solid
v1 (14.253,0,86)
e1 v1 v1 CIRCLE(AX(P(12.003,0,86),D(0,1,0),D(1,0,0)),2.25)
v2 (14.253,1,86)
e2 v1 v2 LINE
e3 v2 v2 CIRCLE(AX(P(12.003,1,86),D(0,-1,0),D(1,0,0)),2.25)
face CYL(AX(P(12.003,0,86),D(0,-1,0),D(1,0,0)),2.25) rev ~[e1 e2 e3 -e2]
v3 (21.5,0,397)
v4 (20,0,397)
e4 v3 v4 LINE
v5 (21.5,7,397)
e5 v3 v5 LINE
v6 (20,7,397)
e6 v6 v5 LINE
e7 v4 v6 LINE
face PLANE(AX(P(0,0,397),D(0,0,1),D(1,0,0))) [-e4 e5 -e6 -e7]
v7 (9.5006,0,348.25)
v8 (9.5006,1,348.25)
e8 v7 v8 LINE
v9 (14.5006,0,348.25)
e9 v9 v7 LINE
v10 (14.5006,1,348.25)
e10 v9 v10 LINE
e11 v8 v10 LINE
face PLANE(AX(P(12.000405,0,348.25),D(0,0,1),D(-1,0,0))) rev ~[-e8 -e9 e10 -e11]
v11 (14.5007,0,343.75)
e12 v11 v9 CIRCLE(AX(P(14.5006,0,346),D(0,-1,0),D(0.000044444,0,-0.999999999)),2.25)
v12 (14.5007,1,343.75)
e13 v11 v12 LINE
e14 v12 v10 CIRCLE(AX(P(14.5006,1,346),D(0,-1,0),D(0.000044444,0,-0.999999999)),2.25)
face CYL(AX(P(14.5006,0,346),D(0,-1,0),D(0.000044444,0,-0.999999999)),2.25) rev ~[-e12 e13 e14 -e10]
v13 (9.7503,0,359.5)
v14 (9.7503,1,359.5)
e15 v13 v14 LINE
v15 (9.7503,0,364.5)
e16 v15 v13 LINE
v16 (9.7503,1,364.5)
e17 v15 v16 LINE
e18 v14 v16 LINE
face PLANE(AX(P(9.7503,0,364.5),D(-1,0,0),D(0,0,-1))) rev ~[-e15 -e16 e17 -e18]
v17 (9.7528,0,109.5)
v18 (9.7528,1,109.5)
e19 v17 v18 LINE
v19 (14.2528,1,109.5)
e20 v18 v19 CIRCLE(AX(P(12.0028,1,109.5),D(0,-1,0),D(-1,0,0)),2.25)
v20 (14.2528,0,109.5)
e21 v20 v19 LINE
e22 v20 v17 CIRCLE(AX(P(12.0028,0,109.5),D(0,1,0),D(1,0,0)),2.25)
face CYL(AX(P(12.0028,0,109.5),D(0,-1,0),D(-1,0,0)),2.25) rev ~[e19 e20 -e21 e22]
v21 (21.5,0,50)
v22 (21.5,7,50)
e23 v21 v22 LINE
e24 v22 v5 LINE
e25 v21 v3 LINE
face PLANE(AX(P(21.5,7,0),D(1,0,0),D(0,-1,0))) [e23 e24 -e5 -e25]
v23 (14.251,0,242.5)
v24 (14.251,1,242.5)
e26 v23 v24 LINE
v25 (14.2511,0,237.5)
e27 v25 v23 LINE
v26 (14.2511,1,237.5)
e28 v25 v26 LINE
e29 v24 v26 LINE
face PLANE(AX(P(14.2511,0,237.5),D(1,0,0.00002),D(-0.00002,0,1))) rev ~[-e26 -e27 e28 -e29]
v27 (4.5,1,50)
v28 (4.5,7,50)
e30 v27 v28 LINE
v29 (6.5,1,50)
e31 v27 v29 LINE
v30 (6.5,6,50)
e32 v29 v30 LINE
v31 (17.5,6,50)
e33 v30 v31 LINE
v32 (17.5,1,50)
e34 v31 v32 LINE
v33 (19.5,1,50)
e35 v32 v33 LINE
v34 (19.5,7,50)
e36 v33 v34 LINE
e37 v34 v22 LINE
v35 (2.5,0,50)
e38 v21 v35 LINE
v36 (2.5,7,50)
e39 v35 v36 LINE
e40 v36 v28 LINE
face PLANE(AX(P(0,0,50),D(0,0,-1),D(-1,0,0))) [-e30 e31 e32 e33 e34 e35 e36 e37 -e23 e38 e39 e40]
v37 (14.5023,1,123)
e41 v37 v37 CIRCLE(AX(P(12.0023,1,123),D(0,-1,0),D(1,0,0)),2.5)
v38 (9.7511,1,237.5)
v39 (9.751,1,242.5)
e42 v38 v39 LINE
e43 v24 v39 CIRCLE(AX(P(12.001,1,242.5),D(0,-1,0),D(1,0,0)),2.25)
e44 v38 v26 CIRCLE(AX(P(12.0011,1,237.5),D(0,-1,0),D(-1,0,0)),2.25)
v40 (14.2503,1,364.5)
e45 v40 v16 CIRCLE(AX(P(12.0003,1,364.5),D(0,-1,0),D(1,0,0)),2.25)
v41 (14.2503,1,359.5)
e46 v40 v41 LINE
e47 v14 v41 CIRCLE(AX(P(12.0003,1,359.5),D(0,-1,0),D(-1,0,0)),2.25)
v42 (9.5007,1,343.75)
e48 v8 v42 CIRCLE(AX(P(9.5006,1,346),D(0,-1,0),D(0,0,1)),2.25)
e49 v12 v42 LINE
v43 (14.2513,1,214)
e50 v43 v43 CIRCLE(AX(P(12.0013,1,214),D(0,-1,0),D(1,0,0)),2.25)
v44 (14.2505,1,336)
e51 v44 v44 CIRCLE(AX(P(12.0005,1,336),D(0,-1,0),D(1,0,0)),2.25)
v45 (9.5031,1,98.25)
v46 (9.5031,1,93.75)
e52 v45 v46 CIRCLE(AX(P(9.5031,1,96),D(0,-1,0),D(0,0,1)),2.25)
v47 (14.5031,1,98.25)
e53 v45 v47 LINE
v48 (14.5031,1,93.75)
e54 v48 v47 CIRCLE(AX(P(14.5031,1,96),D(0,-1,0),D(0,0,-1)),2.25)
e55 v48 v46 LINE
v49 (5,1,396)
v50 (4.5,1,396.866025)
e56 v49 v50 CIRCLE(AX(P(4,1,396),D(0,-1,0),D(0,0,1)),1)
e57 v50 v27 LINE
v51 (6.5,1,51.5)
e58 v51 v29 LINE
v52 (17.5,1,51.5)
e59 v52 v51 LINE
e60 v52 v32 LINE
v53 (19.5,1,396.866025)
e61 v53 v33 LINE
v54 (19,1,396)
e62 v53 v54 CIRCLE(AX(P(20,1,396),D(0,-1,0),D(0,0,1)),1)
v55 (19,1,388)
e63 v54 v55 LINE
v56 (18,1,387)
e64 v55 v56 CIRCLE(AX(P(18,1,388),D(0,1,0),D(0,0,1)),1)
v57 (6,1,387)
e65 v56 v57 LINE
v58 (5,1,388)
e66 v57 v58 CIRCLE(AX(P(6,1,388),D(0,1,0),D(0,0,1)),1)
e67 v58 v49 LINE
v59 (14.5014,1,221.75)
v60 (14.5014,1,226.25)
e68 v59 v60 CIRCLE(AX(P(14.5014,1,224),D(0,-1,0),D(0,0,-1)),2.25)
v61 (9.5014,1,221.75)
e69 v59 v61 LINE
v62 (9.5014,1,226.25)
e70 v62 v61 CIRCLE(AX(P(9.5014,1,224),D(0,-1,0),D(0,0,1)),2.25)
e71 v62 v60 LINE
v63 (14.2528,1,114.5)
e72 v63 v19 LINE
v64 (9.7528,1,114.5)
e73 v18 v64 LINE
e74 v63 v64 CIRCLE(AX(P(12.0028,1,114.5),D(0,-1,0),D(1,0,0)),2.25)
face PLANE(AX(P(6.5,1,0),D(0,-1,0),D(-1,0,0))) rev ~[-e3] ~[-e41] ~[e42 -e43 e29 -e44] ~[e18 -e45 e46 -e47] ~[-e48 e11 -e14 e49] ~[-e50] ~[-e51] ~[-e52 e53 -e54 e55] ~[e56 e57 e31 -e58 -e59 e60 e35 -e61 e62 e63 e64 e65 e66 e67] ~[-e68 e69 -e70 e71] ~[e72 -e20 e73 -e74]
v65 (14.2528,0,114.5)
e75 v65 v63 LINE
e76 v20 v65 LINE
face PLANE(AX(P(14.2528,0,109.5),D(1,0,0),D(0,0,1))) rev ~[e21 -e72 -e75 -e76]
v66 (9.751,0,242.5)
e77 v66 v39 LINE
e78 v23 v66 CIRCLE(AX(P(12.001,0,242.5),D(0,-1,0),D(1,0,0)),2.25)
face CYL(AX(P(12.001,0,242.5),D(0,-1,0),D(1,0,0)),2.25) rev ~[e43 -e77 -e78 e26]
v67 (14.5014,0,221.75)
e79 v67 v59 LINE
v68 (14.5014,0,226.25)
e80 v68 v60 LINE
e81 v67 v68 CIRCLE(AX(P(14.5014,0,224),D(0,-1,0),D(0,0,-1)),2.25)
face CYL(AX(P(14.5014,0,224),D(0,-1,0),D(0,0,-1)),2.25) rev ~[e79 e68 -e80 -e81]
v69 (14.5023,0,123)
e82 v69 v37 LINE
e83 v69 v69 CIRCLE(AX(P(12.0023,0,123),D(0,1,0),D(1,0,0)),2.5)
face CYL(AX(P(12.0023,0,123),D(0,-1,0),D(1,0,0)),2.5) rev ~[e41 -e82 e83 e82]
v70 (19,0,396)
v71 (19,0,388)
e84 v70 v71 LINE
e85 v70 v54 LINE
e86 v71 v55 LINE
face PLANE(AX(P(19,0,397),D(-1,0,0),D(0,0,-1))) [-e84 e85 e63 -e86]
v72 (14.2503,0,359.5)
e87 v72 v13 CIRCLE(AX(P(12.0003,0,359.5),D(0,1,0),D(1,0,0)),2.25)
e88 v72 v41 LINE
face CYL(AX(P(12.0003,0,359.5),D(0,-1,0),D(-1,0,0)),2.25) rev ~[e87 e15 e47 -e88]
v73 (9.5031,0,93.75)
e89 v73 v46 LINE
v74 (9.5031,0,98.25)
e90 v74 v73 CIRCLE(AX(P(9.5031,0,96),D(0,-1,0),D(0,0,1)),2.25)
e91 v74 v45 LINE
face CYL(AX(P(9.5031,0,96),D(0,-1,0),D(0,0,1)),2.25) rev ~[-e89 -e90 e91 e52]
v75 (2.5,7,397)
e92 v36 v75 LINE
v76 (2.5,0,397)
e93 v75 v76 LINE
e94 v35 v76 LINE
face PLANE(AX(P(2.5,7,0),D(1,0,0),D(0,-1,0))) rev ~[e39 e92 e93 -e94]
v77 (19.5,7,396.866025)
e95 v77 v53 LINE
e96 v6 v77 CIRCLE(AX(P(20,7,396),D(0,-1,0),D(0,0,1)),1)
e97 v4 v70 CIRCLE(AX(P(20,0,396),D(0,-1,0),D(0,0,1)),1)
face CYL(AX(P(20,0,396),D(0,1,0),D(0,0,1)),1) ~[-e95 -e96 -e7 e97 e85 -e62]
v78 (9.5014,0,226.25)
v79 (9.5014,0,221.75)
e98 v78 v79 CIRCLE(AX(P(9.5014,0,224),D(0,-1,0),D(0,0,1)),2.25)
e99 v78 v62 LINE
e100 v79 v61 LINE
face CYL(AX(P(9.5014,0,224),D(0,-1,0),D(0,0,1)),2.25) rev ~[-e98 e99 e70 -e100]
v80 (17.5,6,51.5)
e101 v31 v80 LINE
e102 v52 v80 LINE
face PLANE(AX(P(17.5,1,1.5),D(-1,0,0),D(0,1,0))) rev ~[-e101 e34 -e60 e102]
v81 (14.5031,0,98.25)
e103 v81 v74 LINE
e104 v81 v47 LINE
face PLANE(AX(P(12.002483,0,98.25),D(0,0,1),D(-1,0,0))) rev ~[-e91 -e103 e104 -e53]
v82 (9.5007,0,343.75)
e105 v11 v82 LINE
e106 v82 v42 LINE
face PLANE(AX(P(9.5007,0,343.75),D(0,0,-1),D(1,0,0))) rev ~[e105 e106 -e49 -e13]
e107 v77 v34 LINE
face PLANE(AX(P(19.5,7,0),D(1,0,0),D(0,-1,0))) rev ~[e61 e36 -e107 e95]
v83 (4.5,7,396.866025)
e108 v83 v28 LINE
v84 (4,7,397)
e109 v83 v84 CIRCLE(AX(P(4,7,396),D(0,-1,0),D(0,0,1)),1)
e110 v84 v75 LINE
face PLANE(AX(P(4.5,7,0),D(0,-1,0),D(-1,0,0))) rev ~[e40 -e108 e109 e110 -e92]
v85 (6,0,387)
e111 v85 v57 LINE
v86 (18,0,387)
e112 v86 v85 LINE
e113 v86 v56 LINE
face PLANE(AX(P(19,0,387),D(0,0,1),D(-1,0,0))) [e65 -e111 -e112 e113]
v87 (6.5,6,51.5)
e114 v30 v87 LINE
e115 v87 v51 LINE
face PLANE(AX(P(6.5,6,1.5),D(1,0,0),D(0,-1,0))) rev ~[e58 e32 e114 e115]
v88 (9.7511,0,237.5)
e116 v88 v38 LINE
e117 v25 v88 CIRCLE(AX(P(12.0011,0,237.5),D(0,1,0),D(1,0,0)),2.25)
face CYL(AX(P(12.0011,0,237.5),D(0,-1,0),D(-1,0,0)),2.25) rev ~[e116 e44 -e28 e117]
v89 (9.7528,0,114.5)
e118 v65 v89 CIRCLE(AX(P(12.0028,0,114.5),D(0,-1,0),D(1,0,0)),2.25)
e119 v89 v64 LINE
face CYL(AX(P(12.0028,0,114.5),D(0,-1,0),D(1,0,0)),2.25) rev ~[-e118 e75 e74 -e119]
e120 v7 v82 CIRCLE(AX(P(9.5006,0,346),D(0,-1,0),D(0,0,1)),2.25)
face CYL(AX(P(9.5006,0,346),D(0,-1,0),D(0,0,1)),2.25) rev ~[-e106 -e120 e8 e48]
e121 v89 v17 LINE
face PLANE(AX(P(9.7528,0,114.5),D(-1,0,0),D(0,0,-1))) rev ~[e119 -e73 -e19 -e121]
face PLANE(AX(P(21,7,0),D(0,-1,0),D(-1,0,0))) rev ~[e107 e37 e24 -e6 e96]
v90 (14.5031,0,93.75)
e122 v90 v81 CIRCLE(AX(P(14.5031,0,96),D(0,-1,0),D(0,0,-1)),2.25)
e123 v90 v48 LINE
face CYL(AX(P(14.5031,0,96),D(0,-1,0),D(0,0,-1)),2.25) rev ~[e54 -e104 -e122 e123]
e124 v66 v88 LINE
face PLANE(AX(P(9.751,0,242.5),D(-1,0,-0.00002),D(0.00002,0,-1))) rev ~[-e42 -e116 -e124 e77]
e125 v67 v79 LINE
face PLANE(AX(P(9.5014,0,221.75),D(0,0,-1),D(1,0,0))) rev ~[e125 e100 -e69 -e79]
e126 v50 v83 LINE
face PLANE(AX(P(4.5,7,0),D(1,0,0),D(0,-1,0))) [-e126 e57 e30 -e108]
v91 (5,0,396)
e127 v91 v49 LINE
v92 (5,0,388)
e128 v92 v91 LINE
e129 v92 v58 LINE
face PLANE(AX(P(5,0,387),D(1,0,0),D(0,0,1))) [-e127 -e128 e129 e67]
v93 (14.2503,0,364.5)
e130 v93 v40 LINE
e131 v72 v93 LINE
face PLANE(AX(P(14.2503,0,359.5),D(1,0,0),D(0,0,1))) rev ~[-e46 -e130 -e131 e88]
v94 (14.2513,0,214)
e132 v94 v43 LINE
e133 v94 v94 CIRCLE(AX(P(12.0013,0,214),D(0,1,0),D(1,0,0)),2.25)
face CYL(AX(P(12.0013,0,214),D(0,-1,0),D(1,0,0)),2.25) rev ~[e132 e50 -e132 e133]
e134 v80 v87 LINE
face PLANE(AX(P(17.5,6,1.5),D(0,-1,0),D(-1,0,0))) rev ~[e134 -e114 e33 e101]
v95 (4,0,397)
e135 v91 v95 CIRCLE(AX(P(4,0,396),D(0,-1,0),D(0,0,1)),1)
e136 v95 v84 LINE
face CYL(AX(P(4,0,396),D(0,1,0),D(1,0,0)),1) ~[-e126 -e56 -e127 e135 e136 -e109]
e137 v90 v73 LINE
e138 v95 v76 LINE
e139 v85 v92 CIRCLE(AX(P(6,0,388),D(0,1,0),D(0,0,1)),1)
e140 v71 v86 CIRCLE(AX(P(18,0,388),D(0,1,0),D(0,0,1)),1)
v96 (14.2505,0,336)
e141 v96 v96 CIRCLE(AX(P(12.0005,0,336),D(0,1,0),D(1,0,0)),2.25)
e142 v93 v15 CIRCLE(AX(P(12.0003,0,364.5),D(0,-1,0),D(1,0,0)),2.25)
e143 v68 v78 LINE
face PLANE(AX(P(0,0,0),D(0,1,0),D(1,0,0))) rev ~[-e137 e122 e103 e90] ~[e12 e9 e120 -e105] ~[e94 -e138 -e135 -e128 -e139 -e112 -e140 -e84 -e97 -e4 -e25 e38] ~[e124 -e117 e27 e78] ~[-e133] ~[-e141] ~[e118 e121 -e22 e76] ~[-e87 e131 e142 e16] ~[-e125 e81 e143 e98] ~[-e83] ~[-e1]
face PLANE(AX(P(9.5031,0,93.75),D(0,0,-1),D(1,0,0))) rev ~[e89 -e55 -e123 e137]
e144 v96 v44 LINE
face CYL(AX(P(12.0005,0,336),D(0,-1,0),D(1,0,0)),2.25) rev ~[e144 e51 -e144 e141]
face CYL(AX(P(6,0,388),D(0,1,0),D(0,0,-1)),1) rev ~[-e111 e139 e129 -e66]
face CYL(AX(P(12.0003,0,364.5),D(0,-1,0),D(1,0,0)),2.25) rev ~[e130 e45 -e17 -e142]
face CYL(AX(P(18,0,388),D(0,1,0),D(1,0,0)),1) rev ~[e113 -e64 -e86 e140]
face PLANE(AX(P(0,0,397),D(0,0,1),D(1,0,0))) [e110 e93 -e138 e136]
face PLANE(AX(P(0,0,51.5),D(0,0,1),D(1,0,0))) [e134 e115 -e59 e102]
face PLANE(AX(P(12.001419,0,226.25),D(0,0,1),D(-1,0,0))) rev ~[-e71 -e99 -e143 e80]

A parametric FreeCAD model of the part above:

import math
import FreeCAD as App
import Part
import Sketcher
Q = App.Units.Quantity


def edges_at(feature, points):
    """Names of the edges that pass closest to the given points."""
    edges = feature.Shape.Edges
    near = lambda p: min(range(len(edges)), key=lambda i: edges[i].distToShape(Part.Vertex(*p))[0])
    return sorted({f"Edge{near(p) + 1}" for p in points})


def add_polygon(sketch, points):
    """Adds a closed chain of lines whose ends are joined by coincident constraints."""
    first, n = sketch.GeometryCount, len(points)
    for a, b in zip(points, points[1:] + points[:1]):
        sketch.addGeometry(Part.LineSegment(App.Vector(*a, 0), App.Vector(*b, 0)), False)
    for i in range(n):
        sketch.addConstraint(Sketcher.Constraint("Coincident", first + i, 2, first + (i + 1) % n, 1))

doc = App.newDocument("Part")
body = doc.addObject("PartDesign::Body", "Body")
body.AllowCompound = True

# Sketch on XY plane
sketch1 = body.newObject("Sketcher::SketchObject", "Sketch")
sketch1.AttachmentSupport = (doc.getObject("XY_Plane"), [""])
sketch1.MapMode = "FlatFace"
add_polygon(sketch1, [(0, 0), (24, 0), (24, 7), (22, 7), (22, 1), (2, 1), (2, 7), (0, 7)])  # lines 0-7
sketch1.addConstraint([
    Sketcher.Constraint("Horizontal", 0),
    Sketcher.Constraint("Vertical", 1),
    Sketcher.Constraint("Horizontal", 2),
    Sketcher.Constraint("Vertical", 3),
    Sketcher.Constraint("Horizontal", 4),
    Sketcher.Constraint("Vertical", 5),
    Sketcher.Constraint("Horizontal", 6),
    Sketcher.Constraint("Vertical", 7),
    Sketcher.Constraint("Coincident", 7, 2, -1, 1),
    Sketcher.Constraint("Horizontal", 2, 2, 5, 2),
    Sketcher.Constraint("Equal", 2, 6),
    Sketcher.Constraint("DistanceX", 0, 1, 0, 2, Q("24 mm")),
    Sketcher.Constraint("DistanceX", 2, 2, 2, 1, Q("2 mm")),
    Sketcher.Constraint("DistanceY", 1, 1, 1, 2, Q("7 mm")),
    Sketcher.Constraint("DistanceY", -1, 1, 3, 2, Q("1 mm")),
])
pad1 = body.newObject("PartDesign::Pad", "Pad")
pad1.Profile = sketch1
pad1.Length = 397

# Sketch on XZ plane
sketch2 = body.newObject("Sketcher::SketchObject", "Sketch001")
sketch2.AttachmentSupport = (doc.getObject("XZ_Plane"), [""])
sketch2.MapMode = "FlatFace"
sketch2.addGeometry([
    Part.Circle(App.Vector(12, 86, 0), App.Vector(0, 0, 1), 2.2),  # 0
    Part.ArcOfCircle(Part.Circle(App.Vector(12, 359.5, 0), App.Vector(0, 0, 1), 2.2), math.radians(180), math.radians(360)),  # 1
    Part.LineSegment(App.Vector(14.3, 359.5, 0), App.Vector(14.3, 364.5, 0)),  # 2
    Part.ArcOfCircle(Part.Circle(App.Vector(12, 364.5, 0), App.Vector(0, 0, 1), 2.2), math.radians(0), math.radians(180)),  # 3
    Part.LineSegment(App.Vector(9.8, 364.5, 0), App.Vector(9.8, 359.5, 0)),  # 4
    Part.LineSegment(App.Vector(9.5, 343.8, 0), App.Vector(14.5, 343.8, 0)),  # 5
    Part.ArcOfCircle(Part.Circle(App.Vector(14.5, 346, 0), App.Vector(0, 0, 1), 2.3), math.radians(-90), math.radians(90)),  # 6
    Part.LineSegment(App.Vector(14.5, 348.2, 0), App.Vector(9.5, 348.2, 0)),  # 7
    Part.ArcOfCircle(Part.Circle(App.Vector(9.5, 346, 0), App.Vector(0, 0, 1), 2.2), math.radians(90), math.radians(270)),  # 8
    Part.Circle(App.Vector(12, 336, 0), App.Vector(0, 0, 1), 2.2),  # 9
    Part.ArcOfCircle(Part.Circle(App.Vector(12, 237.5, 0), App.Vector(0, 0, 1), 2.2), math.radians(180), math.radians(360)),  # 10
    Part.LineSegment(App.Vector(14.3, 237.5, 0), App.Vector(14.3, 242.5, 0)),  # 11
    Part.ArcOfCircle(Part.Circle(App.Vector(12, 242.5, 0), App.Vector(0, 0, 1), 2.2), math.radians(0), math.radians(180)),  # 12
    Part.LineSegment(App.Vector(9.8, 242.5, 0), App.Vector(9.8, 237.5, 0)),  # 13
    Part.LineSegment(App.Vector(9.5, 221.8, 0), App.Vector(14.5, 221.8, 0)),  # 14
    Part.ArcOfCircle(Part.Circle(App.Vector(14.5, 224, 0), App.Vector(0, 0, 1), 2.2), math.radians(-90), math.radians(90)),  # 15
    Part.LineSegment(App.Vector(14.5, 226.2, 0), App.Vector(9.5, 226.2, 0)),  # 16
    Part.ArcOfCircle(Part.Circle(App.Vector(9.5, 224, 0), App.Vector(0, 0, 1), 2.2), math.radians(90), math.radians(270)),  # 17
    Part.Circle(App.Vector(12, 214, 0), App.Vector(0, 0, 1), 2.2),  # 18
    Part.Circle(App.Vector(12, 123, 0), App.Vector(0, 0, 1), 2.5),  # 19
    Part.ArcOfCircle(Part.Circle(App.Vector(12, 109.5, 0), App.Vector(0, 0, 1), 2.2), math.radians(180), math.radians(360)),  # 20
    Part.LineSegment(App.Vector(14.3, 109.5, 0), App.Vector(14.3, 114.5, 0)),  # 21
    Part.ArcOfCircle(Part.Circle(App.Vector(12, 114.5, 0), App.Vector(0, 0, 1), 2.2), math.radians(0), math.radians(180)),  # 22
    Part.LineSegment(App.Vector(9.8, 114.5, 0), App.Vector(9.8, 109.5, 0)),  # 23
    Part.LineSegment(App.Vector(9.5, 93.8, 0), App.Vector(14.5, 93.8, 0)),  # 24
    Part.ArcOfCircle(Part.Circle(App.Vector(14.5, 96, 0), App.Vector(0, 0, 1), 2.2), math.radians(-90), math.radians(90)),  # 25
    Part.LineSegment(App.Vector(14.5, 98.2, 0), App.Vector(9.5, 98.2, 0)),  # 26
    Part.ArcOfCircle(Part.Circle(App.Vector(9.5, 96, 0), App.Vector(0, 0, 1), 2.2), math.radians(90), math.radians(270)),  # 27
], False)
sketch2.addConstraint([
    Sketcher.Constraint("Tangent", 1, 2, 2, 1),
    Sketcher.Constraint("Tangent", 2, 2, 3, 1),
    Sketcher.Constraint("Tangent", 3, 2, 4, 1),
    Sketcher.Constraint("Tangent", 4, 2, 1, 1),
    Sketcher.Constraint("Tangent", 5, 2, 6, 1),
    Sketcher.Constraint("Tangent", 6, 2, 7, 1),
    Sketcher.Constraint("Tangent", 7, 2, 8, 1),
    Sketcher.Constraint("Tangent", 8, 2, 5, 1),
    Sketcher.Constraint("Tangent", 10, 2, 11, 1),
    Sketcher.Constraint("Tangent", 11, 2, 12, 1),
    Sketcher.Constraint("Tangent", 12, 2, 13, 1),
    Sketcher.Constraint("Tangent", 13, 2, 10, 1),
    Sketcher.Constraint("Tangent", 14, 2, 15, 1),
    Sketcher.Constraint("Tangent", 15, 2, 16, 1),
    Sketcher.Constraint("Tangent", 16, 2, 17, 1),
    Sketcher.Constraint("Tangent", 17, 2, 14, 1),
    Sketcher.Constraint("Tangent", 20, 2, 21, 1),
    Sketcher.Constraint("Tangent", 21, 2, 22, 1),
    Sketcher.Constraint("Tangent", 22, 2, 23, 1),
    Sketcher.Constraint("Tangent", 23, 2, 20, 1),
    Sketcher.Constraint("Tangent", 24, 2, 25, 1),
    Sketcher.Constraint("Tangent", 25, 2, 26, 1),
    Sketcher.Constraint("Tangent", 26, 2, 27, 1),
    Sketcher.Constraint("Tangent", 27, 2, 24, 1),
    Sketcher.Constraint("Vertical", 2),
    Sketcher.Constraint("Vertical", 4),
    Sketcher.Constraint("Horizontal", 5),
    Sketcher.Constraint("Horizontal", 7),
    Sketcher.Constraint("Vertical", 11),
    Sketcher.Constraint("Vertical", 13),
    Sketcher.Constraint("Horizontal", 14),
    Sketcher.Constraint("Horizontal", 16),
    Sketcher.Constraint("Vertical", 21),
    Sketcher.Constraint("Vertical", 23),
    Sketcher.Constraint("Horizontal", 24),
    Sketcher.Constraint("Horizontal", 26),
    Sketcher.Constraint("Equal", 0, 1),
    Sketcher.Constraint("Equal", 3, 6),
    Sketcher.Constraint("Equal", 8, 9),
    Sketcher.Constraint("Equal", 9, 10),
    Sketcher.Constraint("Equal", 12, 15),
    Sketcher.Constraint("Equal", 17, 18),
    Sketcher.Constraint("Equal", 18, 20),
    Sketcher.Constraint("Equal", 22, 25),
    Sketcher.Constraint("Vertical", 0, 3, 20, 3),
    Sketcher.Constraint("Equal", 7, 14),
    Sketcher.Constraint("Equal", 16, 24),
    Sketcher.Constraint("Equal", 26, 2),
    Sketcher.Constraint("Equal", 4, 11),
    Sketcher.Constraint("Equal", 13, 21),
    Sketcher.Constraint("Diameter", 19, Q("5 mm")),
    Sketcher.Constraint("Diameter", 0, Q("4.5 mm")),
    Sketcher.Constraint("DistanceX", 5, 1, 5, 2, Q("5 mm")),
    Sketcher.Constraint("DistanceY", 9, 3, 8, 3, Q("10 mm")),
    Sketcher.Constraint("DistanceY", 18, 3, 17, 3, Q("10 mm")),
    Sketcher.Constraint("DistanceY", 0, 3, 25, 3, Q("10 mm")),
    Sketcher.Constraint("DistanceY", -1, 1, 0, 3, Q("86 mm")),
    Sketcher.Constraint("DistanceY", -1, 1, 6, 3, Q("346 mm")),
    Sketcher.Constraint("DistanceY", -1, 1, 15, 3, Q("224 mm")),
    Sketcher.Constraint("DistanceY", -1, 1, 19, 3, Q("123 mm")),
    Sketcher.Constraint("DistanceY", 10, 3, 1, 3, Q("122 mm")),
    Sketcher.Constraint("DistanceY", -1, 1, 1, 3, Q("359.5 mm")),
    Sketcher.Constraint("DistanceY", -1, 1, 20, 3, Q("109.5 mm")),
    Sketcher.Constraint("DistanceX", 8, 3, 9, 3, Q("2.5 mm")),
    Sketcher.Constraint("DistanceX", 17, 3, 18, 3, Q("2.5 mm")),
    Sketcher.Constraint("DistanceX", 0, 3, 25, 3, Q("2.5 mm")),
    Sketcher.Constraint("DistanceX", -1, 1, 0, 3, Q("12.003 mm")),
    Sketcher.Constraint("DistanceX", -1, 1, 10, 3, Q("12.001 mm")),
    Sketcher.Constraint("DistanceX", 9, 3, 15, 3, Q("2.501 mm")),
    Sketcher.Constraint("DistanceX", 18, 3, 19, 3, Q("0.001 mm")),
    Sketcher.Constraint("DistanceX", -1, 1, 1, 3, Q("12.0003 mm")),
    Sketcher.Constraint("DistanceX", -1, 1, 6, 3, Q("14.5006 mm")),
])
pocket1 = body.newObject("PartDesign::Pocket", "Pocket")
pocket1.Profile = sketch2
pocket1.Length = 10

# Sketch on XY plane
sketch3 = body.newObject("Sketcher::SketchObject", "Sketch002")
sketch3.AttachmentSupport = (doc.getObject("XY_Plane"), [""])
sketch3.MapMode = "FlatFace"
add_polygon(sketch3, [(20, 1), (4, 1), (4, 9), (20, 9)])  # lines 0-3
sketch3.addConstraint([
    Sketcher.Constraint("Horizontal", 0),
    Sketcher.Constraint("Vertical", 1),
    Sketcher.Constraint("Horizontal", 2),
    Sketcher.Constraint("Vertical", 3),
    Sketcher.Constraint("DistanceX", 0, 2, 0, 1, Q("16 mm")),
    Sketcher.Constraint("DistanceY", 1, 1, 1, 2, Q("8 mm")),
    Sketcher.Constraint("DistanceX", -1, 1, 0, 2, Q("4 mm")),
    Sketcher.Constraint("DistanceY", -1, 1, 0, 2, Q("1 mm")),
])
pad2 = body.newObject("PartDesign::Pad", "Pad001")
pad2.Profile = sketch3
pad2.Length = 1.5

# Sketch on XY plane
sketch4 = body.newObject("Sketcher::SketchObject", "Sketch003")
sketch4.AttachmentSupport = (doc.getObject("XY_Plane"), [""])
sketch4.MapMode = "FlatFace"
add_polygon(sketch4, [(2.5, 0), (0, 0), (0, 7), (2.5, 7)])  # lines 0-3
add_polygon(sketch4, [(6.5, 0), (4.5, 0), (4.5, 7), (4, 7), (4, 9), (6.5, 9)])  # lines 4-9
add_polygon(sketch4, [(19.5, 0), (17.5, 0), (17.5, 9), (21, 9), (21, 7), (19.5, 7)])  # lines 10-15
add_polygon(sketch4, [(24, 0), (21.5, 0), (21.5, 7), (24, 7)])  # lines 16-19
sketch4.addConstraint([
    Sketcher.Constraint("Horizontal", 0),
    Sketcher.Constraint("Vertical", 1),
    Sketcher.Constraint("Horizontal", 2),
    Sketcher.Constraint("Vertical", 3),
    Sketcher.Constraint("Horizontal", 4),
    Sketcher.Constraint("Vertical", 5),
    Sketcher.Constraint("Horizontal", 6),
    Sketcher.Constraint("Vertical", 7),
    Sketcher.Constraint("Horizontal", 8),
    Sketcher.Constraint("Vertical", 9),
    Sketcher.Constraint("Horizontal", 10),
    Sketcher.Constraint("Vertical", 11),
    Sketcher.Constraint("Horizontal", 12),
    Sketcher.Constraint("Vertical", 13),
    Sketcher.Constraint("Horizontal", 14),
    Sketcher.Constraint("Vertical", 15),
    Sketcher.Constraint("Horizontal", 16),
    Sketcher.Constraint("Vertical", 17),
    Sketcher.Constraint("Horizontal", 18),
    Sketcher.Constraint("Vertical", 19),
    Sketcher.Constraint("Coincident", 0, 2, -1, 1),
    Sketcher.Constraint("PointOnObject", 4, 2, -1),
    Sketcher.Constraint("PointOnObject", 10, 2, -1),
    Sketcher.Constraint("PointOnObject", 16, 2, -1),
    Sketcher.Constraint("Horizontal", 2, 2, 5, 2),
    Sketcher.Constraint("Horizontal", 8, 2, 11, 2),
    Sketcher.Constraint("Horizontal", 6, 2, 13, 2),
    Sketcher.Constraint("Horizontal", 14, 2, 17, 2),
    Sketcher.Constraint("Equal", 2, 8),
    Sketcher.Constraint("Equal", 4, 10),
    Sketcher.Constraint("Equal", 8, 16),
    Sketcher.Constraint("Equal", 10, 7),
    Sketcher.Constraint("DistanceX", 4, 2, 4, 1, Q("2 mm")),
    Sketcher.Constraint("DistanceX", 0, 2, 0, 1, Q("2.5 mm")),
    Sketcher.Constraint("DistanceX", 3, 2, 4, 2, Q("2 mm")),
    Sketcher.Constraint("DistanceX", 15, 2, 16, 2, Q("2 mm")),
    Sketcher.Constraint("DistanceY", 1, 1, 1, 2, Q("7 mm")),
    Sketcher.Constraint("DistanceX", 12, 1, 12, 2, Q("3.5 mm")),
    Sketcher.Constraint("DistanceX", -1, 1, 12, 2, Q("21 mm")),
])
pocket2 = body.newObject("PartDesign::Pocket", "Pocket001")
pocket2.Profile = sketch4
pocket2.Type = "ThroughAll"
pocket2.Reversed = True

# Sketch on XY plane
sketch5 = body.newObject("Sketcher::SketchObject", "Sketch004")
sketch5.AttachmentSupport = (doc.getObject("XY_Plane"), [""])
sketch5.MapMode = "FlatFace"
add_polygon(sketch5, [(19.5, 1), (19.5, 0), (17.5, 0), (17.5, 1)])  # lines 0-3
add_polygon(sketch5, [(21.5, 1), (19.5, 1), (19.5, 7), (21.5, 7)])  # lines 4-7
add_polygon(sketch5, [(6.5, 1), (6.5, 0), (4.5, 0), (4.5, 1)])  # lines 8-11
add_polygon(sketch5, [(4.5, 7), (4.5, 1), (2.5, 1), (2.5, 7)])  # lines 12-15
sketch5.addConstraint([
    Sketcher.Constraint("Vertical", 0),
    Sketcher.Constraint("Horizontal", 1),
    Sketcher.Constraint("Vertical", 2),
    Sketcher.Constraint("Horizontal", 3),
    Sketcher.Constraint("Horizontal", 4),
    Sketcher.Constraint("Vertical", 5),
    Sketcher.Constraint("Horizontal", 6),
    Sketcher.Constraint("Vertical", 7),
    Sketcher.Constraint("Vertical", 8),
    Sketcher.Constraint("Horizontal", 9),
    Sketcher.Constraint("Vertical", 10),
    Sketcher.Constraint("Horizontal", 11),
    Sketcher.Constraint("Vertical", 12),
    Sketcher.Constraint("Horizontal", 13),
    Sketcher.Constraint("Vertical", 14),
    Sketcher.Constraint("Horizontal", 15),
    Sketcher.Constraint("Coincident", 4, 2, 3, 2),
    Sketcher.Constraint("Coincident", 12, 2, 10, 2),
    Sketcher.Constraint("PointOnObject", 0, 2, -1),
    Sketcher.Constraint("PointOnObject", 8, 2, -1),
    Sketcher.Constraint("Horizontal", 7, 2, 10, 2),
    Sketcher.Constraint("Horizontal", 6, 2, 14, 2),
    Sketcher.Constraint("Equal", 3, 4),
    Sketcher.Constraint("Equal", 6, 9),
    Sketcher.Constraint("Equal", 11, 13),
    Sketcher.Constraint("DistanceX", 1, 2, 1, 1, Q("2 mm")),
    Sketcher.Constraint("DistanceY", 0, 2, 0, 1, Q("1 mm")),
    Sketcher.Constraint("DistanceY", 5, 1, 5, 2, Q("6 mm")),
    Sketcher.Constraint("DistanceX", 8, 2, 1, 2, Q("11 mm")),
    Sketcher.Constraint("DistanceX", -1, 1, 0, 2, Q("19.5 mm")),
])
pad3 = body.newObject("PartDesign::Pad", "Pad002")
pad3.Profile = sketch5
pad3.Length = 397

# Sketch on XZ plane
sketch6 = body.newObject("Sketcher::SketchObject", "Sketch005")
sketch6.AttachmentSupport = (doc.getObject("XZ_Plane"), [""])
sketch6.MapMode = "FlatFace"
add_polygon(sketch6, [(19, 397), (5, 397), (5, 387), (19, 387)])  # lines 0-3
sketch6.addConstraint([
    Sketcher.Constraint("Horizontal", 0),
    Sketcher.Constraint("Vertical", 1),
    Sketcher.Constraint("Horizontal", 2),
    Sketcher.Constraint("Vertical", 3),
    Sketcher.Constraint("DistanceY", 1, 2, 1, 1, Q("10 mm")),
    Sketcher.Constraint("DistanceX", 0, 2, 0, 1, Q("14 mm")),
    Sketcher.Constraint("DistanceX", -1, 1, 0, 2, Q("5 mm")),
    Sketcher.Constraint("DistanceY", -1, 1, 0, 2, Q("397 mm")),
])
pocket3 = body.newObject("PartDesign::Pocket", "Pocket002")
pocket3.Profile = sketch6
pocket3.Length = 10
doc.recompute()

fillet = body.newObject("PartDesign::Fillet", "Fillet")
fillet.Base = (pocket3, edges_at(pocket3, [
    (5, 0.5, 387),
    (19, 0.5, 387),
    (19, 0.5, 397),
    (5, 0.5, 397),
]))
fillet.Radius = 1

# Sketch on XY plane
sketch7 = body.newObject("Sketcher::SketchObject", "Sketch006")
sketch7.AttachmentSupport = (doc.getObject("XY_Plane"), [""])
sketch7.MapMode = "FlatFace"
add_polygon(sketch7, [(6.5, 6), (6.5, 9), (17.5, 9), (17.5, 6)])  # lines 0-3
sketch7.addConstraint([
    Sketcher.Constraint("Vertical", 0),
    Sketcher.Constraint("Horizontal", 1),
    Sketcher.Constraint("Vertical", 2),
    Sketcher.Constraint("Horizontal", 3),
    Sketcher.Constraint("DistanceX", 1, 1, 1, 2, Q("11 mm")),
    Sketcher.Constraint("DistanceY", 0, 1, 0, 2, Q("3 mm")),
    Sketcher.Constraint("DistanceY", -1, 1, 0, 2, Q("9 mm")),
    Sketcher.Constraint("DistanceX", -1, 1, 0, 2, Q("6.5 mm")),
])
pocket4 = body.newObject("PartDesign::Pocket", "Pocket003")
pocket4.Profile = sketch7
pocket4.Length = 10
pocket4.Reversed = True

# Sketch on XY plane
sketch8 = body.newObject("Sketcher::SketchObject", "Sketch007")
sketch8.AttachmentSupport = (doc.getObject("XY_Plane"), [""])
sketch8.MapMode = "FlatFace"
sketch8.AttachmentOffset = App.Placement(App.Vector(0, 0, 1.5), App.Rotation())
add_polygon(sketch8, [(18, 1), (18, 6), (6, 6), (6, 1)])  # lines 0-3
sketch8.addConstraint([
    Sketcher.Constraint("Vertical", 0),
    Sketcher.Constraint("Horizontal", 1),
    Sketcher.Constraint("Vertical", 2),
    Sketcher.Constraint("Horizontal", 3),
    Sketcher.Constraint("DistanceX", 1, 2, 1, 1, Q("11 mm")),
    Sketcher.Constraint("DistanceY", 0, 1, 0, 2, Q("5 mm")),
    Sketcher.Constraint("DistanceY", -1, 1, 0, 2, Q("6 mm")),
    Sketcher.Constraint("DistanceX", -1, 1, 0, 2, Q("17.5 mm")),
])
pad4 = body.newObject("PartDesign::Pad", "Pad003")
pad4.Profile = sketch8
pad4.Length = 50

# Sketch on XY plane
sketch9 = body.newObject("Sketcher::SketchObject", "Sketch008")
sketch9.AttachmentSupport = (doc.getObject("XY_Plane"), [""])
sketch9.MapMode = "FlatFace"
add_polygon(sketch9, [(-32, 24), (30, 24), (30, -21), (-32, -21)])  # lines 0-3
sketch9.addConstraint([
    Sketcher.Constraint("Horizontal", 0),
    Sketcher.Constraint("Vertical", 1),
    Sketcher.Constraint("Horizontal", 2),
    Sketcher.Constraint("Vertical", 3),
    Sketcher.Constraint("DistanceX", 0, 1, 0, 2, Q("62 mm")),
    Sketcher.Constraint("DistanceY", 1, 2, 1, 1, Q("45 mm")),
    Sketcher.Constraint("DistanceX", -1, 1, 0, 2, Q("30 mm")),
    Sketcher.Constraint("DistanceY", -1, 1, 0, 2, Q("24 mm")),
])
pocket5 = body.newObject("PartDesign::Pocket", "Pocket004")
pocket5.Profile = sketch9
pocket5.Length = 50
pocket5.Reversed = True

doc.recompute()
